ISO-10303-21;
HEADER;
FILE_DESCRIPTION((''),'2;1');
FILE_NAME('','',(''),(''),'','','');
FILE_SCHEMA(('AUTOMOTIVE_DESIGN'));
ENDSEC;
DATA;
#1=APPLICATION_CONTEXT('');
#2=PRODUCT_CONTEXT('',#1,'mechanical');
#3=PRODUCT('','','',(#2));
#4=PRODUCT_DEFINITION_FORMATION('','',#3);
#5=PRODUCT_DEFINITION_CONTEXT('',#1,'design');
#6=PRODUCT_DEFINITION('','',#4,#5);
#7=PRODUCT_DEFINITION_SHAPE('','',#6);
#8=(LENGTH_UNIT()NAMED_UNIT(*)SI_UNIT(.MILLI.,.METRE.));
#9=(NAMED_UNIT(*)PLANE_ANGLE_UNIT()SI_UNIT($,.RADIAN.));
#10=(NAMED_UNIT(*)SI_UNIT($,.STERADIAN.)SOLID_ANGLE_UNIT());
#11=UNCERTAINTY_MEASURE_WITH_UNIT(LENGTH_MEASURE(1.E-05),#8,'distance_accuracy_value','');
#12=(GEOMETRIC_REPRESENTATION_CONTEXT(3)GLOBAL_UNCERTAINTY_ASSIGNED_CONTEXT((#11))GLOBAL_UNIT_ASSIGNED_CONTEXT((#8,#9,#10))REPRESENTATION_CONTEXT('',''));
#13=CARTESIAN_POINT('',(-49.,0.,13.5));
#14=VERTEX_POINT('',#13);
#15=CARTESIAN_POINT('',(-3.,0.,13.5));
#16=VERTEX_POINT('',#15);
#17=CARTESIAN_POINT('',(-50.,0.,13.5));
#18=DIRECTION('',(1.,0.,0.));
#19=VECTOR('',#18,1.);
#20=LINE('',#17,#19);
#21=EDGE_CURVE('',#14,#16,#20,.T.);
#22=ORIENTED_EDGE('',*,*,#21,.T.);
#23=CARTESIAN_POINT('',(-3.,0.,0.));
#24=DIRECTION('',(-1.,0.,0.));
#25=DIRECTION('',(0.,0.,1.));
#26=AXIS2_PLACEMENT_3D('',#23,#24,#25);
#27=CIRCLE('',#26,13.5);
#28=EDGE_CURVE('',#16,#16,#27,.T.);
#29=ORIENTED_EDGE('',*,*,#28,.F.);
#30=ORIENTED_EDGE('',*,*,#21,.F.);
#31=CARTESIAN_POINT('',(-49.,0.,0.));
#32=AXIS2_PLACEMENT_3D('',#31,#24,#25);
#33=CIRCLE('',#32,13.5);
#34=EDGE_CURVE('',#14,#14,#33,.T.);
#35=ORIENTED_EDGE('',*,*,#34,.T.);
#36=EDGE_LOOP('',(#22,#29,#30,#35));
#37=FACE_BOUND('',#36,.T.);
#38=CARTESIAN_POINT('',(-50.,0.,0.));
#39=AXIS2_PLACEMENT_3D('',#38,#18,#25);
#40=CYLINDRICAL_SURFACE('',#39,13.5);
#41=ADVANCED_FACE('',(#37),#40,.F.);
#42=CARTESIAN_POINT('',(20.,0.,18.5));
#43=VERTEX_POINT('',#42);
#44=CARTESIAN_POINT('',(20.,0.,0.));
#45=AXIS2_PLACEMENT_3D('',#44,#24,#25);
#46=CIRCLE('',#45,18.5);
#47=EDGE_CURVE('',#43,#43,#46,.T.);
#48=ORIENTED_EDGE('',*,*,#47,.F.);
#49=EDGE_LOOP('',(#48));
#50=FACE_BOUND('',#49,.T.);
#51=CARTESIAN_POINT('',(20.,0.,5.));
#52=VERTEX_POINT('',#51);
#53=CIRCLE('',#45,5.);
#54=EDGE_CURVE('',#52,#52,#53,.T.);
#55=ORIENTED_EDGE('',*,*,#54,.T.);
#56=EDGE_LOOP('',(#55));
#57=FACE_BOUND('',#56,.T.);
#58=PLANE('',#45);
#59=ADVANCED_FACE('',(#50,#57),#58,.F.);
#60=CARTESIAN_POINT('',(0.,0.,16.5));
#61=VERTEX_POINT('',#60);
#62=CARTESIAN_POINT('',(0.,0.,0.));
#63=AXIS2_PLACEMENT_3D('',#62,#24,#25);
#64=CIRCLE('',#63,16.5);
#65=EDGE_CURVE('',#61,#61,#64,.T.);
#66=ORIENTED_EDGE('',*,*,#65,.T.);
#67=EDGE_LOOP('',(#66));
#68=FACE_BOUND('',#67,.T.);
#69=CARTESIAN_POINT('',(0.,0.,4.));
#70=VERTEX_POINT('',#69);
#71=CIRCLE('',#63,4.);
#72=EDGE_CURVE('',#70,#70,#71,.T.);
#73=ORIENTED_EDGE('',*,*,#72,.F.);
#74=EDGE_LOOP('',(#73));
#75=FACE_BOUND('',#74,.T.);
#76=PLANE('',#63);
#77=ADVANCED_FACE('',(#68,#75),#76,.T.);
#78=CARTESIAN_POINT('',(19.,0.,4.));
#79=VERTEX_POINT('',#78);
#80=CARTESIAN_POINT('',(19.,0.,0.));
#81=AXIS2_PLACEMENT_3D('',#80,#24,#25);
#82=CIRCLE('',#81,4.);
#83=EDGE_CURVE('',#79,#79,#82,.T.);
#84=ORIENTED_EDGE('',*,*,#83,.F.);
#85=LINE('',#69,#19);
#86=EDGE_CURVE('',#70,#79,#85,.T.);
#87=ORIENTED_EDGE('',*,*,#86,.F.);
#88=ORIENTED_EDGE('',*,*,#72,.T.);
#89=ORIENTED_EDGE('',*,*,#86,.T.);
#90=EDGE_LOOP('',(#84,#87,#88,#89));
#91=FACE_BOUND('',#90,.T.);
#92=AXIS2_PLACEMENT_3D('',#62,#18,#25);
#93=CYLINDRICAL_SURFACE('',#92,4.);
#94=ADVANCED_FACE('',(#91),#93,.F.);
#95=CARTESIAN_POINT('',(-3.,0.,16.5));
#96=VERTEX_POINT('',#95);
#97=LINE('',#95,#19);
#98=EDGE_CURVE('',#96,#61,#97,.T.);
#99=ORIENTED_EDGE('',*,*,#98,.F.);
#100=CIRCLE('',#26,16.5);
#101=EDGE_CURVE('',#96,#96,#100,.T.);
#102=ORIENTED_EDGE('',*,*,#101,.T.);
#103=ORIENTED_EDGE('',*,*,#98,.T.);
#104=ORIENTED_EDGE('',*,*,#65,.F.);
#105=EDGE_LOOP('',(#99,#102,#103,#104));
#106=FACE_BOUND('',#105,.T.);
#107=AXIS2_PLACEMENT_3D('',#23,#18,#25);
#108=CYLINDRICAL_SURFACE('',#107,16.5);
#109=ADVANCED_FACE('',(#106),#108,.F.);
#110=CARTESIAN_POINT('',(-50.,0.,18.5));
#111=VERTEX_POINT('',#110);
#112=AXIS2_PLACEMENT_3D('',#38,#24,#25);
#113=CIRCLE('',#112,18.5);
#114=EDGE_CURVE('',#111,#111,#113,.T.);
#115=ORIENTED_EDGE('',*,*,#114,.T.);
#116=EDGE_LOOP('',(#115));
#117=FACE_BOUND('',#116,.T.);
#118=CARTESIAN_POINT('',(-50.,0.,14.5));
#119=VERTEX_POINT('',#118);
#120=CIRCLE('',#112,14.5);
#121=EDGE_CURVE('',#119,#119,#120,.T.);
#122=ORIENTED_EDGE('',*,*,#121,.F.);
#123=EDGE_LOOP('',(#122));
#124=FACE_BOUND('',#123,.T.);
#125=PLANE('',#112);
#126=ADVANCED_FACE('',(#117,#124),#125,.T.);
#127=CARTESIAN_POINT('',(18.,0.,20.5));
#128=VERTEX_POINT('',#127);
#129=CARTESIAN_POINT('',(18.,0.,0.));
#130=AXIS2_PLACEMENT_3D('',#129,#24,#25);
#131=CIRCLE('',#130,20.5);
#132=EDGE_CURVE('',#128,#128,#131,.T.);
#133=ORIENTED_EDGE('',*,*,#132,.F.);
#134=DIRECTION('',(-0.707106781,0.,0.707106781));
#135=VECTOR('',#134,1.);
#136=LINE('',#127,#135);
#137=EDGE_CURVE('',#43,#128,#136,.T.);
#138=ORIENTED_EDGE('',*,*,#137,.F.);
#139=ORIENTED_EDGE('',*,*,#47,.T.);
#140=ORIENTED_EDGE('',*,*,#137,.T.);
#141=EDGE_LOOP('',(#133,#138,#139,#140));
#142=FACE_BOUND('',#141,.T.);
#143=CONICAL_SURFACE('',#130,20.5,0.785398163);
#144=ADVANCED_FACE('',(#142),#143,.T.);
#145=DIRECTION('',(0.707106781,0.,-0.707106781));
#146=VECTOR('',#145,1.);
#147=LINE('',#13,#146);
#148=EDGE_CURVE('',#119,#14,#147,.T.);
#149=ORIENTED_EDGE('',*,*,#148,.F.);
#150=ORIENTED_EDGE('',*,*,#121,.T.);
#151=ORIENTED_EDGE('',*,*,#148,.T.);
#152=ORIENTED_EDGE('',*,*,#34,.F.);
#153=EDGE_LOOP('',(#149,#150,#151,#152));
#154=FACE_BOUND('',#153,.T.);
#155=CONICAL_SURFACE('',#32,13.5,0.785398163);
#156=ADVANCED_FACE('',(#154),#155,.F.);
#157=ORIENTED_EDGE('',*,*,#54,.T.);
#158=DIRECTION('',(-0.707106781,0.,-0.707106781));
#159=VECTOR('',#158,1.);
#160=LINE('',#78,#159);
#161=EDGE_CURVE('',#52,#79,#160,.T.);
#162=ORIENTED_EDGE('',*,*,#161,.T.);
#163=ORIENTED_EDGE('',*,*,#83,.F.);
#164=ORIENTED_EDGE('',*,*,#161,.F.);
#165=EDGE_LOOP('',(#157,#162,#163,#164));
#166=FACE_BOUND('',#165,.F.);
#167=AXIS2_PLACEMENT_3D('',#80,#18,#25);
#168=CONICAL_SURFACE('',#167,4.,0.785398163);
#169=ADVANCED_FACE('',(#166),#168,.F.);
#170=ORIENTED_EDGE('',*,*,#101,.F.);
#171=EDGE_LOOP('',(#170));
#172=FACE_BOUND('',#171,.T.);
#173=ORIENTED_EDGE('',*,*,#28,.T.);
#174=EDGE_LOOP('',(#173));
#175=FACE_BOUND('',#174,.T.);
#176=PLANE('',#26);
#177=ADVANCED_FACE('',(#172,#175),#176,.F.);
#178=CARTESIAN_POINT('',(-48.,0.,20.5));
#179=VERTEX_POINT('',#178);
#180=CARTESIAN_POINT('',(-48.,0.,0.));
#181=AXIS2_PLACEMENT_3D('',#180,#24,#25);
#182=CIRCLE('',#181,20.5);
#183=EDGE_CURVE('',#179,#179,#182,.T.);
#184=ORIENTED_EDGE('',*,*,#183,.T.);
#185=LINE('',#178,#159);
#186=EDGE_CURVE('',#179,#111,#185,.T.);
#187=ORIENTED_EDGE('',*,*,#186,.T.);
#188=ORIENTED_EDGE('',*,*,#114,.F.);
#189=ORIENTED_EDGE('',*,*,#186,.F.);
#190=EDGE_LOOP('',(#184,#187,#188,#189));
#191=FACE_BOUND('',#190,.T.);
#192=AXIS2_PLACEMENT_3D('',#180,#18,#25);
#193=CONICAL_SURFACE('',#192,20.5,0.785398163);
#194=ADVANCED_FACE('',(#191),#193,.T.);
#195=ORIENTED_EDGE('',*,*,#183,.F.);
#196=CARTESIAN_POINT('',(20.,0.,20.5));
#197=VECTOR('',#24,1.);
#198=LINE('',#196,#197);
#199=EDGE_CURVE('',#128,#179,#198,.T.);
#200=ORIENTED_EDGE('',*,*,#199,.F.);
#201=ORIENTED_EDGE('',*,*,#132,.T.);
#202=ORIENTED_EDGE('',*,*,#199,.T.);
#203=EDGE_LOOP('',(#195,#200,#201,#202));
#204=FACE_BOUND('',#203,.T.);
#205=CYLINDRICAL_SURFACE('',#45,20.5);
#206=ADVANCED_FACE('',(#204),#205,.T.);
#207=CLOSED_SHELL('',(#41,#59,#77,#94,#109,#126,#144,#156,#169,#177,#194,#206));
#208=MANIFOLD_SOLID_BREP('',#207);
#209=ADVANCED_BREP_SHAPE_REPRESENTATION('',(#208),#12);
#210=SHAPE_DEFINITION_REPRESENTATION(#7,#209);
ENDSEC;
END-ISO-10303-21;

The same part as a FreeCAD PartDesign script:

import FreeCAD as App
import Part
import Sketcher
from FreeCAD import Vector


def edges_at(feature, points):
    """Names of the edges that pass closest to the given points."""
    edges = feature.Shape.Edges
    near = lambda p: min(range(len(edges)), key=lambda i: edges[i].distToShape(Part.Vertex(*p))[0])
    return sorted({f"Edge{near(p) + 1}" for p in points})

doc = App.newDocument("Part")
params = doc.addObject("Spreadsheet::Sheet", "Params")
for row, (alias, value) in enumerate([
    ("sketch1_width", "20 mm"),
    ("sketch1_width2", "70 mm"),
    ("sketch1_width3", "47 mm"),
    ("sketch1_height", "7 mm"),
    ("sketch1_height2", "16.5 mm"),
    ("revolution_angle", "360 deg"),
    ("chamfer_size", "2 mm"),
    ("chamfer2_size", "1 mm"),
], start=1):
    params.set(f"A{row}", alias)
    params.set(f"B{row}", "=" + value)
    params.setAlias(f"B{row}", alias)

body = doc.addObject("PartDesign::Body", "Body")

# Sketch on XZ plane
sketch1 = body.newObject("Sketcher::SketchObject", "Sketch")
sketch1.AttachmentSupport = (doc.getObject("XZ_Plane"), [""])
sketch1.MapMode = "FlatFace"
sketch1.addGeometry([
    Part.LineSegment(Vector(0, 4, 0), Vector(20, 4, 0)),  # 0
    Part.LineSegment(Vector(20, 4, 0), Vector(20, 20.5, 0)),  # 1
    Part.LineSegment(Vector(20, 20.5, 0), Vector(-50, 20.5, 0)),  # 2
    Part.LineSegment(Vector(-50, 20.5, 0), Vector(-50, 13.5, 0)),  # 3
    Part.LineSegment(Vector(-50, 13.5, 0), Vector(-3, 13.5, 0)),  # 4
    Part.LineSegment(Vector(-3, 13.5, 0), Vector(-3, 16.5, 0)),  # 5
    Part.LineSegment(Vector(-3, 16.5, 0), Vector(0, 16.5, 0)),  # 6
    Part.LineSegment(Vector(0, 16.5, 0), Vector(0, 4, 0)),  # 7
], False)
sketch1.addConstraint([
    Sketcher.Constraint("Coincident", 0, 2, 1, 1),
    Sketcher.Constraint("Coincident", 1, 2, 2, 1),
    Sketcher.Constraint("Coincident", 2, 2, 3, 1),
    Sketcher.Constraint("Coincident", 3, 2, 4, 1),
    Sketcher.Constraint("Coincident", 4, 2, 5, 1),
    Sketcher.Constraint("Coincident", 5, 2, 6, 1),
    Sketcher.Constraint("Coincident", 6, 2, 7, 1),
    Sketcher.Constraint("Coincident", 7, 2, 0, 1),
    Sketcher.Constraint("Horizontal", 0),
    Sketcher.Constraint("Vertical", 1),
    Sketcher.Constraint("Horizontal", 2),
    Sketcher.Constraint("Vertical", 3),
    Sketcher.Constraint("Horizontal", 4),
    Sketcher.Constraint("Vertical", 5),
    Sketcher.Constraint("Horizontal", 6),
    Sketcher.Constraint("Vertical", 7),
    Sketcher.Constraint("PointOnObject", 6, 2, -2),
    Sketcher.Constraint("Equal", 6, 5),
    Sketcher.Constraint("DistanceX", 0, 1, 0, 2, 20.0),
    Sketcher.Constraint("DistanceX", 2, 2, 2, 1, 70.0),
    Sketcher.Constraint("DistanceX", 4, 1, 4, 2, 47.0),
    Sketcher.Constraint("DistanceY", 3, 2, 3, 1, 7.0),
    Sketcher.Constraint("DistanceY", 1, 1, 1, 2, 16.5),
    Sketcher.Constraint("DistanceY", -1, 1, 0, 2, 4.0),
])
sketch1.setExpression("Constraints[18]", "Params.sketch1_width")
sketch1.setExpression("Constraints[19]", "Params.sketch1_width2")
sketch1.setExpression("Constraints[20]", "Params.sketch1_width3")
sketch1.setExpression("Constraints[21]", "Params.sketch1_height")
sketch1.setExpression("Constraints[22]", "Params.sketch1_height2")
revolution = body.newObject("PartDesign::Revolution", "Revolution")
revolution.Profile = sketch1
revolution.ReferenceAxis = (sketch1, ["H_Axis"])
revolution.setExpression("Angle", "Params.revolution_angle")
doc.recompute()

chamfer = body.newObject("PartDesign::Chamfer", "Chamfer")
chamfer.Base = (revolution, edges_at(revolution, [(-50, 0, -20.5), (20, 0, -20.5)]))
chamfer.setExpression("Size", "Params.chamfer_size")
doc.recompute()

chamfer2 = body.newObject("PartDesign::Chamfer", "Chamfer001")
chamfer2.Base = (chamfer, edges_at(chamfer, [(-50, 0, -13.5), (20, 0, -4)]))
chamfer2.setExpression("Size", "Params.chamfer2_size")

doc.recompute()
